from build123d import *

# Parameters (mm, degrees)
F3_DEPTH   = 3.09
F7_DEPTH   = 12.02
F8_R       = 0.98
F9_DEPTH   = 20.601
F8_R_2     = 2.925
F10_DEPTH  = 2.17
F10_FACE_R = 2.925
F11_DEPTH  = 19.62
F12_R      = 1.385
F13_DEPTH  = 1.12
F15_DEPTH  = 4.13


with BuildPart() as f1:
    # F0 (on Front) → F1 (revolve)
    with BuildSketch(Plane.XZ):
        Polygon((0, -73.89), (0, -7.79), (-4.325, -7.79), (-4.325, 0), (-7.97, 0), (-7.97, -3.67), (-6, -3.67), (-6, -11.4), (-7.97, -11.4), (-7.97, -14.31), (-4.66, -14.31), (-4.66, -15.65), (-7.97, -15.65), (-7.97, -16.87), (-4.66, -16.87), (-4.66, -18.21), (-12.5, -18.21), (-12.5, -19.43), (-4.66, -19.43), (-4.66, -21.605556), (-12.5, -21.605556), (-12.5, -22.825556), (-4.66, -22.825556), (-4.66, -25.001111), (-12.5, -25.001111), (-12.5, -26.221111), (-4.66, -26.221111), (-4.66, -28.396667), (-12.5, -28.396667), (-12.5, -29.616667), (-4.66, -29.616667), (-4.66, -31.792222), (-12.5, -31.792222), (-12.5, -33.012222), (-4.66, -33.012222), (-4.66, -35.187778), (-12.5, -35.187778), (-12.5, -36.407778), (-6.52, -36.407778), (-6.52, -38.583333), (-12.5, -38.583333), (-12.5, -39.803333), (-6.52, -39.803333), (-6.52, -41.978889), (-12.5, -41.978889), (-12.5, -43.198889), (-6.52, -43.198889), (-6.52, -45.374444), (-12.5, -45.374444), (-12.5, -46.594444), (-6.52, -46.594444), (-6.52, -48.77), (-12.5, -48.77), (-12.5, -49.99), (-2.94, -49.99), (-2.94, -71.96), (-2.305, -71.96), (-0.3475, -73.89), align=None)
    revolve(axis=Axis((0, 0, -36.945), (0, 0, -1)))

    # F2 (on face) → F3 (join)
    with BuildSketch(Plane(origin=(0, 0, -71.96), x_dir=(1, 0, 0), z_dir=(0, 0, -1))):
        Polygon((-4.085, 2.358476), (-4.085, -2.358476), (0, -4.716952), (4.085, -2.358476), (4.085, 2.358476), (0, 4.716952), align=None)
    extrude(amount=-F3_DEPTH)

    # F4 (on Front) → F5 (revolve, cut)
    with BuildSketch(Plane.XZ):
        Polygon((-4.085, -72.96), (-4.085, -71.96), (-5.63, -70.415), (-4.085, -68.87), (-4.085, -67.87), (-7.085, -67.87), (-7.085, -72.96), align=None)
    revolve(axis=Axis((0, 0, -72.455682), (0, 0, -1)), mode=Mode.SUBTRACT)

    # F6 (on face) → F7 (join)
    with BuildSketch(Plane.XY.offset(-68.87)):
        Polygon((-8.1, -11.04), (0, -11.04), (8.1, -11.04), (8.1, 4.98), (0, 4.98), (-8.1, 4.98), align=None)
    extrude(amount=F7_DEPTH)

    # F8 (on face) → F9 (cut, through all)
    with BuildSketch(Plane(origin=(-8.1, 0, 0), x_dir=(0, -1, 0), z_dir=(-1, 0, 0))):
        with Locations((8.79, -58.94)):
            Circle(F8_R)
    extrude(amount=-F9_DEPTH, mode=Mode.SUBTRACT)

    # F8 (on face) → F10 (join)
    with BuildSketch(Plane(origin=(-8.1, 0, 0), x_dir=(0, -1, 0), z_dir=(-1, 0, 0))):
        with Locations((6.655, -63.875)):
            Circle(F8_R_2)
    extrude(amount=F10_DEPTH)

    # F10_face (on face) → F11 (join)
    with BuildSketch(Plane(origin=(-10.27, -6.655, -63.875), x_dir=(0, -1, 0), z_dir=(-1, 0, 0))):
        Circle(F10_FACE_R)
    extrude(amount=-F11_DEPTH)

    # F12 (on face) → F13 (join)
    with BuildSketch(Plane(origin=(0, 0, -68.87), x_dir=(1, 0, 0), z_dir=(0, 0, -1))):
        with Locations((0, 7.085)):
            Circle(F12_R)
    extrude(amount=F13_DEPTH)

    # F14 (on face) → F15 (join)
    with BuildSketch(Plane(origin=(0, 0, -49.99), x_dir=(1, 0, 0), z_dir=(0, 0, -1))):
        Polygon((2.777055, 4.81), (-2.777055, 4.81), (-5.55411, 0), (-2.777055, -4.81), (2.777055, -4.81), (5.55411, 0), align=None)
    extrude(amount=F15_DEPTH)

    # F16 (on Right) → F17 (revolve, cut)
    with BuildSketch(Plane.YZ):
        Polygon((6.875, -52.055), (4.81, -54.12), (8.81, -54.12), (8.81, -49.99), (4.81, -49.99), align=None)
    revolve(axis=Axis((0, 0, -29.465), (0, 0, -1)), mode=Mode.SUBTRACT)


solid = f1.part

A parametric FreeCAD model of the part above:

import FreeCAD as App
import Part
import Sketcher
Q = App.Units.Quantity

doc = App.newDocument("Part")
body = doc.addObject("PartDesign::Body", "Body")

sketch1 = body.newObject("Sketcher::SketchObject", "Sketch")
sketch1.AttachmentSupport = (doc.getObject("XZ_Plane"), [""])
sketch1.MapMode = "FlatFace"
sketch1.addGeometry(Part.LineSegment(App.Vector(0, -73.89, 0), App.Vector(0, -7.79, 0)), False)
sketch1.addGeometry(Part.LineSegment(App.Vector(0, -7.79, 0), App.Vector(-4.33, -7.79, 0)), False)
sketch1.addGeometry(Part.LineSegment(App.Vector(-4.33, -7.79, 0), App.Vector(-4.33, 0, 0)), False)
sketch1.addGeometry(Part.LineSegment(App.Vector(-4.33, 0, 0), App.Vector(-7.97, 0, 0)), False)
sketch1.addGeometry(Part.LineSegment(App.Vector(-7.97, 0, 0), App.Vector(-7.97, -3.67, 0)), False)
sketch1.addGeometry(Part.LineSegment(App.Vector(-7.97, -3.67, 0), App.Vector(-6, -3.67, 0)), False)
sketch1.addGeometry(Part.LineSegment(App.Vector(-6, -3.67, 0), App.Vector(-6, -11.4, 0)), False)
sketch1.addGeometry(Part.LineSegment(App.Vector(-6, -11.4, 0), App.Vector(-7.97, -11.4, 0)), False)
sketch1.addGeometry(Part.LineSegment(App.Vector(-7.97, -11.4, 0), App.Vector(-7.97, -14.31, 0)), False)
sketch1.addGeometry(Part.LineSegment(App.Vector(-7.97, -14.31, 0), App.Vector(-4.66, -14.31, 0)), False)
sketch1.addGeometry(Part.LineSegment(App.Vector(-4.66, -14.31, 0), App.Vector(-4.66, -15.65, 0)), False)
sketch1.addGeometry(Part.LineSegment(App.Vector(-4.66, -15.65, 0), App.Vector(-7.97, -15.65, 0)), False)
sketch1.addGeometry(Part.LineSegment(App.Vector(-7.97, -15.65, 0), App.Vector(-7.97, -16.87, 0)), False)
sketch1.addGeometry(Part.LineSegment(App.Vector(-7.97, -16.87, 0), App.Vector(-4.66, -16.87, 0)), False)
sketch1.addGeometry(Part.LineSegment(App.Vector(-4.66, -16.87, 0), App.Vector(-4.66, -18.21, 0)), False)
sketch1.addGeometry(Part.LineSegment(App.Vector(-4.66, -18.21, 0), App.Vector(-12.5, -18.21, 0)), False)
sketch1.addGeometry(Part.LineSegment(App.Vector(-12.5, -18.21, 0), App.Vector(-12.5, -19.43, 0)), False)
sketch1.addGeometry(Part.LineSegment(App.Vector(-12.5, -19.43, 0), App.Vector(-4.66, -19.43, 0)), False)
sketch1.addGeometry(Part.LineSegment(App.Vector(-4.66, -19.43, 0), App.Vector(-4.66, -21.61, 0)), False)
sketch1.addGeometry(Part.LineSegment(App.Vector(-4.66, -21.61, 0), App.Vector(-12.5, -21.61, 0)), False)
sketch1.addGeometry(Part.LineSegment(App.Vector(-12.5, -21.61, 0), App.Vector(-12.5, -22.83, 0)), False)
sketch1.addGeometry(Part.LineSegment(App.Vector(-12.5, -22.83, 0), App.Vector(-4.66, -22.83, 0)), False)
sketch1.addGeometry(Part.LineSegment(App.Vector(-4.66, -22.83, 0), App.Vector(-4.66, -25, 0)), False)
sketch1.addGeometry(Part.LineSegment(App.Vector(-4.66, -25, 0), App.Vector(-12.5, -25, 0)), False)
sketch1.addGeometry(Part.LineSegment(App.Vector(-12.5, -25, 0), App.Vector(-12.5, -26.22, 0)), False)
sketch1.addGeometry(Part.LineSegment(App.Vector(-12.5, -26.22, 0), App.Vector(-4.66, -26.22, 0)), False)
sketch1.addGeometry(Part.LineSegment(App.Vector(-4.66, -26.22, 0), App.Vector(-4.66, -28.4, 0)), False)
sketch1.addGeometry(Part.LineSegment(App.Vector(-4.66, -28.4, 0), App.Vector(-12.5, -28.4, 0)), False)
sketch1.addGeometry(Part.LineSegment(App.Vector(-12.5, -28.4, 0), App.Vector(-12.5, -29.62, 0)), False)
sketch1.addGeometry(Part.LineSegment(App.Vector(-12.5, -29.62, 0), App.Vector(-4.66, -29.62, 0)), False)
sketch1.addGeometry(Part.LineSegment(App.Vector(-4.66, -29.62, 0), App.Vector(-4.66, -31.79, 0)), False)
sketch1.addGeometry(Part.LineSegment(App.Vector(-4.66, -31.79, 0), App.Vector(-12.5, -31.79, 0)), False)
sketch1.addGeometry(Part.LineSegment(App.Vector(-12.5, -31.79, 0), App.Vector(-12.5, -33.01, 0)), False)
sketch1.addGeometry(Part.LineSegment(App.Vector(-12.5, -33.01, 0), App.Vector(-4.66, -33.01, 0)), False)
sketch1.addGeometry(Part.LineSegment(App.Vector(-4.66, -33.01, 0), App.Vector(-4.66, -35.19, 0)), False)
sketch1.addGeometry(Part.LineSegment(App.Vector(-4.66, -35.19, 0), App.Vector(-12.5, -35.19, 0)), False)
sketch1.addGeometry(Part.LineSegment(App.Vector(-12.5, -35.19, 0), App.Vector(-12.5, -36.41, 0)), False)
sketch1.addGeometry(Part.LineSegment(App.Vector(-12.5, -36.41, 0), App.Vector(-6.52, -36.41, 0)), False)
sketch1.addGeometry(Part.LineSegment(App.Vector(-6.52, -36.41, 0), App.Vector(-6.52, -38.58, 0)), False)
sketch1.addGeometry(Part.LineSegment(App.Vector(-6.52, -38.58, 0), App.Vector(-12.5, -38.58, 0)), False)
sketch1.addGeometry(Part.LineSegment(App.Vector(-12.5, -38.58, 0), App.Vector(-12.5, -39.8, 0)), False)
sketch1.addGeometry(Part.LineSegment(App.Vector(-12.5, -39.8, 0), App.Vector(-6.52, -39.8, 0)), False)
sketch1.addGeometry(Part.LineSegment(App.Vector(-6.52, -39.8, 0), App.Vector(-6.52, -41.98, 0)), False)
sketch1.addGeometry(Part.LineSegment(App.Vector(-6.52, -41.98, 0), App.Vector(-12.5, -41.98, 0)), False)
sketch1.addGeometry(Part.LineSegment(App.Vector(-12.5, -41.98, 0), App.Vector(-12.5, -43.2, 0)), False)
sketch1.addGeometry(Part.LineSegment(App.Vector(-12.5, -43.2, 0), App.Vector(-6.52, -43.2, 0)), False)
sketch1.addGeometry(Part.LineSegment(App.Vector(-6.52, -43.2, 0), App.Vector(-6.52, -45.37, 0)), False)
sketch1.addGeometry(Part.LineSegment(App.Vector(-6.52, -45.37, 0), App.Vector(-12.5, -45.37, 0)), False)
sketch1.addGeometry(Part.LineSegment(App.Vector(-12.5, -45.37, 0), App.Vector(-12.5, -46.59, 0)), False)
sketch1.addGeometry(Part.LineSegment(App.Vector(-12.5, -46.59, 0), App.Vector(-6.52, -46.59, 0)), False)
sketch1.addGeometry(Part.LineSegment(App.Vector(-6.52, -46.59, 0), App.Vector(-6.52, -48.77, 0)), False)
sketch1.addGeometry(Part.LineSegment(App.Vector(-6.52, -48.77, 0), App.Vector(-12.5, -48.77, 0)), False)
sketch1.addGeometry(Part.LineSegment(App.Vector(-12.5, -48.77, 0), App.Vector(-12.5, -49.99, 0)), False)
sketch1.addGeometry(Part.LineSegment(App.Vector(-12.5, -49.99, 0), App.Vector(-2.94, -49.99, 0)), False)
sketch1.addGeometry(Part.LineSegment(App.Vector(-2.94, -49.99, 0), App.Vector(-2.94, -71.96, 0)), False)
sketch1.addGeometry(Part.LineSegment(App.Vector(-2.94, -71.96, 0), App.Vector(-2.31, -71.96, 0)), False)
sketch1.addGeometry(Part.LineSegment(App.Vector(-2.31, -71.96, 0), App.Vector(-0.35, -73.89, 0)), False)
sketch1.addGeometry(Part.LineSegment(App.Vector(-0.35, -73.89, 0), App.Vector(0, -73.89, 0)), False)
sketch1.addConstraint(Sketcher.Constraint("Coincident", 0, 2, 1, 1))
sketch1.addConstraint(Sketcher.Constraint("Coincident", 1, 2, 2, 1))
sketch1.addConstraint(Sketcher.Constraint("Coincident", 2, 2, 3, 1))
sketch1.addConstraint(Sketcher.Constraint("Coincident", 3, 2, 4, 1))
sketch1.addConstraint(Sketcher.Constraint("Coincident", 4, 2, 5, 1))
sketch1.addConstraint(Sketcher.Constraint("Coincident", 5, 2, 6, 1))
sketch1.addConstraint(Sketcher.Constraint("Coincident", 6, 2, 7, 1))
sketch1.addConstraint(Sketcher.Constraint("Coincident", 7, 2, 8, 1))
sketch1.addConstraint(Sketcher.Constraint("Coincident", 8, 2, 9, 1))
sketch1.addConstraint(Sketcher.Constraint("Coincident", 9, 2, 10, 1))
sketch1.addConstraint(Sketcher.Constraint("Coincident", 10, 2, 11, 1))
sketch1.addConstraint(Sketcher.Constraint("Coincident", 11, 2, 12, 1))
sketch1.addConstraint(Sketcher.Constraint("Coincident", 12, 2, 13, 1))
sketch1.addConstraint(Sketcher.Constraint("Coincident", 13, 2, 14, 1))
sketch1.addConstraint(Sketcher.Constraint("Coincident", 14, 2, 15, 1))
sketch1.addConstraint(Sketcher.Constraint("Coincident", 15, 2, 16, 1))
sketch1.addConstraint(Sketcher.Constraint("Coincident", 16, 2, 17, 1))
sketch1.addConstraint(Sketcher.Constraint("Coincident", 17, 2, 18, 1))
sketch1.addConstraint(Sketcher.Constraint("Coincident", 18, 2, 19, 1))
sketch1.addConstraint(Sketcher.Constraint("Coincident", 19, 2, 20, 1))
sketch1.addConstraint(Sketcher.Constraint("Coincident", 20, 2, 21, 1))
sketch1.addConstraint(Sketcher.Constraint("Coincident", 21, 2, 22, 1))
sketch1.addConstraint(Sketcher.Constraint("Coincident", 22, 2, 23, 1))
sketch1.addConstraint(Sketcher.Constraint("Coincident", 23, 2, 24, 1))
sketch1.addConstraint(Sketcher.Constraint("Coincident", 24, 2, 25, 1))
sketch1.addConstraint(Sketcher.Constraint("Coincident", 25, 2, 26, 1))
sketch1.addConstraint(Sketcher.Constraint("Coincident", 26, 2, 27, 1))
sketch1.addConstraint(Sketcher.Constraint("Coincident", 27, 2, 28, 1))
sketch1.addConstraint(Sketcher.Constraint("Coincident", 28, 2, 29, 1))
sketch1.addConstraint(Sketcher.Constraint("Coincident", 29, 2, 30, 1))
sketch1.addConstraint(Sketcher.Constraint("Coincident", 30, 2, 31, 1))
sketch1.addConstraint(Sketcher.Constraint("Coincident", 31, 2, 32, 1))
sketch1.addConstraint(Sketcher.Constraint("Coincident", 32, 2, 33, 1))
sketch1.addConstraint(Sketcher.Constraint("Coincident", 33, 2, 34, 1))
sketch1.addConstraint(Sketcher.Constraint("Coincident", 34, 2, 35, 1))
sketch1.addConstraint(Sketcher.Constraint("Coincident", 35, 2, 36, 1))
sketch1.addConstraint(Sketcher.Constraint("Coincident", 36, 2, 37, 1))
sketch1.addConstraint(Sketcher.Constraint("Coincident", 37, 2, 38, 1))
sketch1.addConstraint(Sketcher.Constraint("Coincident", 38, 2, 39, 1))
sketch1.addConstraint(Sketcher.Constraint("Coincident", 39, 2, 40, 1))
sketch1.addConstraint(Sketcher.Constraint("Coincident", 40, 2, 41, 1))
sketch1.addConstraint(Sketcher.Constraint("Coincident", 41, 2, 42, 1))
sketch1.addConstraint(Sketcher.Constraint("Coincident", 42, 2, 43, 1))
sketch1.addConstraint(Sketcher.Constraint("Coincident", 43, 2, 44, 1))
sketch1.addConstraint(Sketcher.Constraint("Coincident", 44, 2, 45, 1))
sketch1.addConstraint(Sketcher.Constraint("Coincident", 45, 2, 46, 1))
sketch1.addConstraint(Sketcher.Constraint("Coincident", 46, 2, 47, 1))
sketch1.addConstraint(Sketcher.Constraint("Coincident", 47, 2, 48, 1))
sketch1.addConstraint(Sketcher.Constraint("Coincident", 48, 2, 49, 1))
sketch1.addConstraint(Sketcher.Constraint("Coincident", 49, 2, 50, 1))
sketch1.addConstraint(Sketcher.Constraint("Coincident", 50, 2, 51, 1))
sketch1.addConstraint(Sketcher.Constraint("Coincident", 51, 2, 52, 1))
sketch1.addConstraint(Sketcher.Constraint("Coincident", 52, 2, 53, 1))
sketch1.addConstraint(Sketcher.Constraint("Coincident", 53, 2, 54, 1))
sketch1.addConstraint(Sketcher.Constraint("Coincident", 54, 2, 55, 1))
sketch1.addConstraint(Sketcher.Constraint("Coincident", 55, 2, 56, 1))
sketch1.addConstraint(Sketcher.Constraint("Coincident", 56, 2, 57, 1))
sketch1.addConstraint(Sketcher.Constraint("Coincident", 57, 2, 0, 1))
sketch1.addConstraint(Sketcher.Constraint("Vertical", 0))
sketch1.addConstraint(Sketcher.Constraint("Horizontal", 1))
sketch1.addConstraint(Sketcher.Constraint("Vertical", 2))
sketch1.addConstraint(Sketcher.Constraint("Horizontal", 3))
sketch1.addConstraint(Sketcher.Constraint("Vertical", 4))
sketch1.addConstraint(Sketcher.Constraint("Horizontal", 5))
sketch1.addConstraint(Sketcher.Constraint("Vertical", 6))
sketch1.addConstraint(Sketcher.Constraint("Horizontal", 7))
sketch1.addConstraint(Sketcher.Constraint("Vertical", 8))
sketch1.addConstraint(Sketcher.Constraint("Horizontal", 9))
sketch1.addConstraint(Sketcher.Constraint("Vertical", 10))
sketch1.addConstraint(Sketcher.Constraint("Horizontal", 11))
sketch1.addConstraint(Sketcher.Constraint("Vertical", 12))
sketch1.addConstraint(Sketcher.Constraint("Horizontal", 13))
sketch1.addConstraint(Sketcher.Constraint("Vertical", 14))
sketch1.addConstraint(Sketcher.Constraint("Horizontal", 15))
sketch1.addConstraint(Sketcher.Constraint("Vertical", 16))
sketch1.addConstraint(Sketcher.Constraint("Horizontal", 17))
sketch1.addConstraint(Sketcher.Constraint("Vertical", 18))
sketch1.addConstraint(Sketcher.Constraint("Horizontal", 19))
sketch1.addConstraint(Sketcher.Constraint("Vertical", 20))
sketch1.addConstraint(Sketcher.Constraint("Horizontal", 21))
sketch1.addConstraint(Sketcher.Constraint("Vertical", 22))
sketch1.addConstraint(Sketcher.Constraint("Horizontal", 23))
sketch1.addConstraint(Sketcher.Constraint("Vertical", 24))
sketch1.addConstraint(Sketcher.Constraint("Horizontal", 25))
sketch1.addConstraint(Sketcher.Constraint("Vertical", 26))
sketch1.addConstraint(Sketcher.Constraint("Horizontal", 27))
sketch1.addConstraint(Sketcher.Constraint("Vertical", 28))
sketch1.addConstraint(Sketcher.Constraint("Horizontal", 29))
sketch1.addConstraint(Sketcher.Constraint("Vertical", 30))
sketch1.addConstraint(Sketcher.Constraint("Horizontal", 31))
sketch1.addConstraint(Sketcher.Constraint("Vertical", 32))
sketch1.addConstraint(Sketcher.Constraint("Horizontal", 33))
sketch1.addConstraint(Sketcher.Constraint("Vertical", 34))
sketch1.addConstraint(Sketcher.Constraint("Horizontal", 35))
sketch1.addConstraint(Sketcher.Constraint("Vertical", 36))
sketch1.addConstraint(Sketcher.Constraint("Horizontal", 37))
sketch1.addConstraint(Sketcher.Constraint("Vertical", 38))
sketch1.addConstraint(Sketcher.Constraint("Horizontal", 39))
sketch1.addConstraint(Sketcher.Constraint("Vertical", 40))
sketch1.addConstraint(Sketcher.Constraint("Horizontal", 41))
sketch1.addConstraint(Sketcher.Constraint("Vertical", 42))
sketch1.addConstraint(Sketcher.Constraint("Horizontal", 43))
sketch1.addConstraint(Sketcher.Constraint("Vertical", 44))
sketch1.addConstraint(Sketcher.Constraint("Horizontal", 45))
sketch1.addConstraint(Sketcher.Constraint("Vertical", 46))
sketch1.addConstraint(Sketcher.Constraint("Horizontal", 47))
sketch1.addConstraint(Sketcher.Constraint("Vertical", 48))
sketch1.addConstraint(Sketcher.Constraint("Horizontal", 49))
sketch1.addConstraint(Sketcher.Constraint("Vertical", 50))
sketch1.addConstraint(Sketcher.Constraint("Horizontal", 51))
sketch1.addConstraint(Sketcher.Constraint("Vertical", 52))
sketch1.addConstraint(Sketcher.Constraint("Horizontal", 53))
sketch1.addConstraint(Sketcher.Constraint("Vertical", 54))
sketch1.addConstraint(Sketcher.Constraint("Horizontal", 55))
sketch1.addConstraint(Sketcher.Constraint("Horizontal", 57))
sketch1.addConstraint(Sketcher.Constraint("PointOnObject", 0, 2, -2))
sketch1.addConstraint(Sketcher.Constraint("PointOnObject", 2, 2, -1))
sketch1.addConstraint(Sketcher.Constraint("Vertical", 4, 2, 7, 2))
sketch1.addConstraint(Sketcher.Constraint("Vertical", 8, 2, 11, 2))
sketch1.addConstraint(Sketcher.Constraint("Vertical", 10, 2, 13, 2))
sketch1.addConstraint(Sketcher.Constraint("Vertical", 14, 2, 17, 2))
sketch1.addConstraint(Sketcher.Constraint("Vertical", 16, 2, 19, 2))
sketch1.addConstraint(Sketcher.Constraint("Vertical", 18, 2, 21, 2))
sketch1.addConstraint(Sketcher.Constraint("Vertical", 20, 2, 23, 2))
sketch1.addConstraint(Sketcher.Constraint("Vertical", 22, 2, 25, 2))
sketch1.addConstraint(Sketcher.Constraint("Vertical", 24, 2, 27, 2))
sketch1.addConstraint(Sketcher.Constraint("Vertical", 26, 2, 29, 2))
sketch1.addConstraint(Sketcher.Constraint("Vertical", 28, 2, 31, 2))
sketch1.addConstraint(Sketcher.Constraint("Vertical", 30, 2, 33, 2))
sketch1.addConstraint(Sketcher.Constraint("Vertical", 32, 2, 35, 2))
sketch1.addConstraint(Sketcher.Constraint("Vertical", 36, 2, 39, 2))
sketch1.addConstraint(Sketcher.Constraint("Vertical", 38, 2, 41, 2))
sketch1.addConstraint(Sketcher.Constraint("Vertical", 40, 2, 43, 2))
sketch1.addConstraint(Sketcher.Constraint("Vertical", 42, 2, 45, 2))
sketch1.addConstraint(Sketcher.Constraint("Vertical", 44, 2, 47, 2))
sketch1.addConstraint(Sketcher.Constraint("Vertical", 46, 2, 49, 2))
sketch1.addConstraint(Sketcher.Constraint("Vertical", 48, 2, 51, 2))
sketch1.addConstraint(Sketcher.Constraint("Equal", 10, 14))
sketch1.addConstraint(Sketcher.Constraint("Equal", 12, 16))
sketch1.addConstraint(Sketcher.Constraint("Equal", 16, 20))
sketch1.addConstraint(Sketcher.Constraint("Equal", 18, 22))
sketch1.addConstraint(Sketcher.Constraint("Equal", 20, 24))
sketch1.addConstraint(Sketcher.Constraint("Equal", 22, 26))
sketch1.addConstraint(Sketcher.Constraint("Equal", 24, 28))
sketch1.addConstraint(Sketcher.Constraint("Equal", 26, 30))
sketch1.addConstraint(Sketcher.Constraint("Equal", 28, 32))
sketch1.addConstraint(Sketcher.Constraint("Equal", 30, 34))
sketch1.addConstraint(Sketcher.Constraint("Equal", 32, 36))
sketch1.addConstraint(Sketcher.Constraint("Equal", 34, 38))
sketch1.addConstraint(Sketcher.Constraint("Equal", 36, 40))
sketch1.addConstraint(Sketcher.Constraint("Equal", 38, 42))
sketch1.addConstraint(Sketcher.Constraint("Equal", 40, 44))
sketch1.addConstraint(Sketcher.Constraint("Equal", 42, 46))
sketch1.addConstraint(Sketcher.Constraint("Equal", 44, 48))
sketch1.addConstraint(Sketcher.Constraint("Equal", 46, 50))
sketch1.addConstraint(Sketcher.Constraint("Equal", 48, 52))
sketch1.addConstraint(Sketcher.Constraint("DistanceY", 0, 1, 0, 2, Q("66.1 mm")))
sketch1.addConstraint(Sketcher.Constraint("DistanceX", 5, 2, -1, 1, Q("6 mm")))
sketch1.addConstraint(Sketcher.Constraint("DistanceX", 5, 1, 5, 2, Q("1.97 mm")))
sketch1.addConstraint(Sketcher.Constraint("DistanceX", 9, 1, 9, 2, Q("3.31 mm")))
sketch1.addConstraint(Sketcher.Constraint("DistanceX", 15, 2, 15, 1, Q("7.84 mm")))
sketch1.addConstraint(Sketcher.Constraint("DistanceX", 37, 1, 37, 2, Q("5.98 mm")))
sketch1.addConstraint(Sketcher.Constraint("DistanceX", 53, 1, 53, 2, Q("9.56 mm")))
sketch1.addConstraint(Sketcher.Constraint("DistanceY", 2, 1, 2, 2, Q("7.79 mm")))
sketch1.addConstraint(Sketcher.Constraint("DistanceY", 4, 2, 4, 1, Q("3.67 mm")))
sketch1.addConstraint(Sketcher.Constraint("DistanceY", 6, 2, 6, 1, Q("7.73 mm")))
sketch1.addConstraint(Sketcher.Constraint("DistanceY", 8, 2, 8, 1, Q("2.91 mm")))
sketch1.addConstraint(Sketcher.Constraint("DistanceY", 10, 2, 10, 1, Q("1.34 mm")))
sketch1.addConstraint(Sketcher.Constraint("DistanceY", 12, 2, 12, 1, Q("1.22 mm")))
sketch1.addConstraint(Sketcher.Constraint("DistanceY", 54, 2, 54, 1, Q("21.97 mm")))
sketch1.addConstraint(Sketcher.Constraint("DistanceY", 56, 2, 53, 2, Q("23.9 mm")))
sketch1.addConstraint(Sketcher.Constraint("DistanceX", 1, 2, 1, 1, Q("4.325 mm")))
sketch1.addConstraint(Sketcher.Constraint("DistanceX", 55, 1, 55, 2, Q("0.635 mm")))
sketch1.addConstraint(Sketcher.Constraint("DistanceX", 57, 1, 57, 2, Q("0.3475 mm")))
revolution = body.newObject("PartDesign::Revolution", "Revolution")
revolution.Profile = sketch1
revolution.ReferenceAxis = (sketch1, ["V_Axis"])
revolution.Angle = 360

sketch2 = body.newObject("Sketcher::SketchObject", "Sketch001")
sketch2.AttachmentSupport = (doc.getObject("XY_Plane"), [""])
sketch2.MapMode = "FlatFace"
sketch2.AttachmentOffset = App.Placement(App.Vector(0, 0, -71.96), App.Rotation())
sketch2.addGeometry(Part.LineSegment(App.Vector(-4.1, -2.4, 0), App.Vector(-4.1, 2.4, 0)), False)
sketch2.addGeometry(Part.LineSegment(App.Vector(-4.1, 2.4, 0), App.Vector(0, 4.7, 0)), False)
sketch2.addGeometry(Part.LineSegment(App.Vector(0, 4.7, 0), App.Vector(4.1, 2.4, 0)), False)
sketch2.addGeometry(Part.LineSegment(App.Vector(4.1, 2.4, 0), App.Vector(4.1, -2.4, 0)), False)
sketch2.addGeometry(Part.LineSegment(App.Vector(4.1, -2.4, 0), App.Vector(0, -4.7, 0)), False)
sketch2.addGeometry(Part.LineSegment(App.Vector(0, -4.7, 0), App.Vector(-4.1, -2.4, 0)), False)
sketch2.addConstraint(Sketcher.Constraint("Coincident", 0, 2, 1, 1))
sketch2.addConstraint(Sketcher.Constraint("Coincident", 1, 2, 2, 1))
sketch2.addConstraint(Sketcher.Constraint("Coincident", 2, 2, 3, 1))
sketch2.addConstraint(Sketcher.Constraint("Coincident", 3, 2, 4, 1))
sketch2.addConstraint(Sketcher.Constraint("Coincident", 4, 2, 5, 1))
sketch2.addConstraint(Sketcher.Constraint("Coincident", 5, 2, 0, 1))
sketch2.addConstraint(Sketcher.Constraint("Vertical", 0))
sketch2.addConstraint(Sketcher.Constraint("Vertical", 3))
sketch2.addConstraint(Sketcher.Constraint("Symmetric", 0, 2, 3, 2, -1, 1))
sketch2.addConstraint(Sketcher.Constraint("Symmetric", 1, 2, 4, 2, -1, 1))
sketch2.addConstraint(Sketcher.Constraint("PointOnObject", 1, 2, -2))
sketch2.addConstraint(Sketcher.Constraint("Parallel", 2, 5))
sketch2.addConstraint(Sketcher.Constraint("Horizontal", 0, 2, 2, 2))
sketch2.addConstraint(Sketcher.Constraint("Angle", 1, Q("30.000002 deg")))
sketch2.addConstraint(Sketcher.Constraint("DistanceX", 0, 2, 2, 2, Q("8.17 mm")))
sketch2.addConstraint(Sketcher.Constraint("DistanceY", 0, 1, 0, 2, Q("4.716952 mm")))
pad1 = body.newObject("PartDesign::Pad", "Pad")
pad1.Profile = sketch2
pad1.Length = 3.09

sketch3 = body.newObject("Sketcher::SketchObject", "Sketch002")
sketch3.AttachmentSupport = (doc.getObject("XZ_Plane"), [""])
sketch3.MapMode = "FlatFace"
sketch3.addGeometry(Part.LineSegment(App.Vector(-4.1, -73, 0), App.Vector(-4.1, -72, 0)), False)
sketch3.addGeometry(Part.LineSegment(App.Vector(-4.1, -72, 0), App.Vector(-5.6, -70.4, 0)), False)
sketch3.addGeometry(Part.LineSegment(App.Vector(-5.6, -70.4, 0), App.Vector(-4.1, -68.9, 0)), False)
sketch3.addGeometry(Part.LineSegment(App.Vector(-4.1, -68.9, 0), App.Vector(-4.1, -67.9, 0)), False)
sketch3.addGeometry(Part.LineSegment(App.Vector(-4.1, -67.9, 0), App.Vector(-7.1, -67.9, 0)), False)
sketch3.addGeometry(Part.LineSegment(App.Vector(-7.1, -67.9, 0), App.Vector(-7.1, -73, 0)), False)
sketch3.addGeometry(Part.LineSegment(App.Vector(-7.1, -73, 0), App.Vector(-4.1, -73, 0)), False)
sketch3.addConstraint(Sketcher.Constraint("Coincident", 0, 2, 1, 1))
sketch3.addConstraint(Sketcher.Constraint("Coincident", 1, 2, 2, 1))
sketch3.addConstraint(Sketcher.Constraint("Coincident", 2, 2, 3, 1))
sketch3.addConstraint(Sketcher.Constraint("Coincident", 3, 2, 4, 1))
sketch3.addConstraint(Sketcher.Constraint("Coincident", 4, 2, 5, 1))
sketch3.addConstraint(Sketcher.Constraint("Coincident", 5, 2, 6, 1))
sketch3.addConstraint(Sketcher.Constraint("Coincident", 6, 2, 0, 1))
sketch3.addConstraint(Sketcher.Constraint("Vertical", 0))
sketch3.addConstraint(Sketcher.Constraint("Vertical", 3))
sketch3.addConstraint(Sketcher.Constraint("Horizontal", 4))
sketch3.addConstraint(Sketcher.Constraint("Vertical", 5))
sketch3.addConstraint(Sketcher.Constraint("Horizontal", 6))
sketch3.addConstraint(Sketcher.Constraint("Perpendicular", 1, 2))
sketch3.addConstraint(Sketcher.Constraint("Vertical", 0, 2, 2, 2))
sketch3.addConstraint(Sketcher.Constraint("Equal", 0, 3))
sketch3.addConstraint(Sketcher.Constraint("Equal", 1, 2))
sketch3.addConstraint(Sketcher.Constraint("DistanceX", 4, 2, 4, 1, Q("3 mm")))
sketch3.addConstraint(Sketcher.Constraint("DistanceY", 0, 1, 0, 2, Q("1 mm")))
sketch3.addConstraint(Sketcher.Constraint("DistanceY", 5, 2, 5, 1, Q("5.09 mm")))
sketch3.addConstraint(Sketcher.Constraint("DistanceY", 0, 2, -1, 1, Q("71.96 mm")))
sketch3.addConstraint(Sketcher.Constraint("DistanceX", 1, 2, -1, 1, Q("5.63 mm")))
groove = body.newObject("PartDesign::Groove", "Groove")
groove.Profile = sketch3
groove.ReferenceAxis = (sketch3, ["V_Axis"])
groove.Angle = 360

sketch4 = body.newObject("Sketcher::SketchObject", "Sketch003")
sketch4.AttachmentSupport = (doc.getObject("XY_Plane"), [""])
sketch4.MapMode = "FlatFace"
sketch4.AttachmentOffset = App.Placement(App.Vector(0, 0, -68.87), App.Rotation())
sketch4.addGeometry(Part.LineSegment(App.Vector(-8, -11, 0), App.Vector(8, -11, 0)), False)
sketch4.addGeometry(Part.LineSegment(App.Vector(8, -11, 0), App.Vector(8, 5, 0)), False)
sketch4.addGeometry(Part.LineSegment(App.Vector(8, 5, 0), App.Vector(-8, 5, 0)), False)
sketch4.addGeometry(Part.LineSegment(App.Vector(-8, 5, 0), App.Vector(-8, -11, 0)), False)
sketch4.addConstraint(Sketcher.Constraint("Coincident", 0, 2, 1, 1))
sketch4.addConstraint(Sketcher.Constraint("Coincident", 1, 2, 2, 1))
sketch4.addConstraint(Sketcher.Constraint("Coincident", 2, 2, 3, 1))
sketch4.addConstraint(Sketcher.Constraint("Coincident", 3, 2, 0, 1))
sketch4.addConstraint(Sketcher.Constraint("Horizontal", 0))
sketch4.addConstraint(Sketcher.Constraint("Vertical", 1))
sketch4.addConstraint(Sketcher.Constraint("Horizontal", 2))
sketch4.addConstraint(Sketcher.Constraint("Vertical", 3))
sketch4.addConstraint(Sketcher.Constraint("DistanceX", 0, 1, 0, 2, Q("16.2 mm")))
sketch4.addConstraint(Sketcher.Constraint("DistanceY", 1, 1, 1, 2, Q("16.02 mm")))
sketch4.addConstraint(Sketcher.Constraint("DistanceX", -1, 1, 0, 2, Q("8.1 mm")))
sketch4.addConstraint(Sketcher.Constraint("DistanceY", 0, 2, -1, 1, Q("11.04 mm")))
pad2 = body.newObject("PartDesign::Pad", "Pad001")
pad2.Profile = sketch4
pad2.Length = 12.02

sketch5 = body.newObject("Sketcher::SketchObject", "Sketch004")
sketch5.AttachmentSupport = (doc.getObject("YZ_Plane"), [""])
sketch5.MapMode = "FlatFace"
sketch5.AttachmentOffset = App.Placement(App.Vector(0, 0, -8.1), App.Rotation())
sketch5.addGeometry(Part.Circle(App.Vector(-8.8, -58.9, 0), App.Vector(0, 0, 1), 1), False)
sketch5.addConstraint(Sketcher.Constraint("Diameter", 0, Q("1.96 mm")))
sketch5.addConstraint(Sketcher.Constraint("DistanceX", 0, 3, -1, 1, Q("8.79 mm")))
sketch5.addConstraint(Sketcher.Constraint("DistanceY", 0, 3, -1, 1, Q("58.94 mm")))
pocket1 = body.newObject("PartDesign::Pocket", "Pocket")
pocket1.Profile = sketch5
pocket1.Type = "ThroughAll"
pocket1.Reversed = True

sketch6 = body.newObject("Sketcher::SketchObject", "Sketch005")
sketch6.AttachmentSupport = (doc.getObject("YZ_Plane"), [""])
sketch6.MapMode = "FlatFace"
sketch6.AttachmentOffset = App.Placement(App.Vector(0, 0, -8.1), App.Rotation())
sketch6.addGeometry(Part.Circle(App.Vector(-6.7, -63.9, 0), App.Vector(0, 0, 1), 2.9), False)
sketch6.addConstraint(Sketcher.Constraint("Diameter", 0, Q("5.85 mm")))
sketch6.addConstraint(Sketcher.Constraint("DistanceX", 0, 3, -1, 1, Q("6.655 mm")))
sketch6.addConstraint(Sketcher.Constraint("DistanceY", 0, 3, -1, 1, Q("63.875 mm")))
pad3 = body.newObject("PartDesign::Pad", "Pad002")
pad3.Profile = sketch6
pad3.Length = 2.17
pad3.Reversed = True

sketch7 = body.newObject("Sketcher::SketchObject", "Sketch006")
sketch7.AttachmentSupport = (doc.getObject("YZ_Plane"), [""])
sketch7.MapMode = "FlatFace"
sketch7.AttachmentOffset = App.Placement(App.Vector(0, 0, -10.27), App.Rotation())
sketch7.addGeometry(Part.Circle(App.Vector(-6.7, -63.9, 0), App.Vector(0, 0, 1), 2.9), False)
sketch7.addConstraint(Sketcher.Constraint("Diameter", 0, Q("5.85 mm")))
sketch7.addConstraint(Sketcher.Constraint("DistanceX", 0, 3, -1, 1, Q("6.655 mm")))
sketch7.addConstraint(Sketcher.Constraint("DistanceY", 0, 3, -1, 1, Q("63.875 mm")))
pad4 = body.newObject("PartDesign::Pad", "Pad003")
pad4.Profile = sketch7
pad4.Length = 19.62

sketch8 = body.newObject("Sketcher::SketchObject", "Sketch007")
sketch8.AttachmentSupport = (doc.getObject("XY_Plane"), [""])
sketch8.MapMode = "FlatFace"
sketch8.AttachmentOffset = App.Placement(App.Vector(0, 0, -68.87), App.Rotation())
sketch8.addGeometry(Part.Circle(App.Vector(0, -7.1, 0), App.Vector(0, 0, 1), 1.4), False)
sketch8.addConstraint(Sketcher.Constraint("PointOnObject", 0, 3, -2))
sketch8.addConstraint(Sketcher.Constraint("Diameter", 0, Q("2.77 mm")))
sketch8.addConstraint(Sketcher.Constraint("DistanceY", 0, 3, -1, 1, Q("7.085 mm")))
pad5 = body.newObject("PartDesign::Pad", "Pad004")
pad5.Profile = sketch8
pad5.Length = 1.12
pad5.Reversed = True

sketch9 = body.newObject("Sketcher::SketchObject", "Sketch008")
sketch9.AttachmentSupport = (doc.getObject("XY_Plane"), [""])
sketch9.MapMode = "FlatFace"
sketch9.AttachmentOffset = App.Placement(App.Vector(0, 0, -49.99), App.Rotation())
sketch9.addGeometry(Part.LineSegment(App.Vector(3, -5, 0), App.Vector(-3, -5, 0)), False)
sketch9.addGeometry(Part.LineSegment(App.Vector(-3, -5, 0), App.Vector(-6, 0, 0)), False)
sketch9.addGeometry(Part.LineSegment(App.Vector(-6, 0, 0), App.Vector(-3, 5, 0)), False)
sketch9.addGeometry(Part.LineSegment(App.Vector(-3, 5, 0), App.Vector(3, 5, 0)), False)
sketch9.addGeometry(Part.LineSegment(App.Vector(3, 5, 0), App.Vector(6, 0, 0)), False)
sketch9.addGeometry(Part.LineSegment(App.Vector(6, 0, 0), App.Vector(3, -5, 0)), False)
sketch9.addConstraint(Sketcher.Constraint("Coincident", 0, 2, 1, 1))
sketch9.addConstraint(Sketcher.Constraint("Coincident", 1, 2, 2, 1))
sketch9.addConstraint(Sketcher.Constraint("Coincident", 2, 2, 3, 1))
sketch9.addConstraint(Sketcher.Constraint("Coincident", 3, 2, 4, 1))
sketch9.addConstraint(Sketcher.Constraint("Coincident", 4, 2, 5, 1))
sketch9.addConstraint(Sketcher.Constraint("Coincident", 5, 2, 0, 1))
sketch9.addConstraint(Sketcher.Constraint("Horizontal", 0))
sketch9.addConstraint(Sketcher.Constraint("Horizontal", 3))
sketch9.addConstraint(Sketcher.Constraint("Symmetric", 0, 2, 3, 2, -1, 1))
sketch9.addConstraint(Sketcher.Constraint("Symmetric", 1, 2, 4, 2, -1, 1))
sketch9.addConstraint(Sketcher.Constraint("PointOnObject", 1, 2, -1))
sketch9.addConstraint(Sketcher.Constraint("Parallel", 2, 5))
sketch9.addConstraint(Sketcher.Constraint("Vertical", 0, 2, 2, 2))
sketch9.addConstraint(Sketcher.Constraint("Angle", 1, Q("120.000002 deg")))
sketch9.addConstraint(Sketcher.Constraint("DistanceY", 0, 2, -1, 1, Q("4.81 mm")))
sketch9.addConstraint(Sketcher.Constraint("DistanceX", 0, 2, 0, 1, Q("5.55411 mm")))
pad6 = body.newObject("PartDesign::Pad", "Pad005")
pad6.Profile = sketch9
pad6.Length = 4.13
pad6.Reversed = True

sketch10 = body.newObject("Sketcher::SketchObject", "Sketch009")
sketch10.AttachmentSupport = (doc.getObject("YZ_Plane"), [""])
sketch10.MapMode = "FlatFace"
sketch10.addGeometry(Part.LineSegment(App.Vector(6.9, -52.1, 0), App.Vector(4.8, -54.1, 0)), False)
sketch10.addGeometry(Part.LineSegment(App.Vector(4.8, -54.1, 0), App.Vector(8.8, -54.1, 0)), False)
sketch10.addGeometry(Part.LineSegment(App.Vector(8.8, -54.1, 0), App.Vector(8.8, -50, 0)), False)
sketch10.addGeometry(Part.LineSegment(App.Vector(8.8, -50, 0), App.Vector(4.8, -50, 0)), False)
sketch10.addGeometry(Part.LineSegment(App.Vector(4.8, -50, 0), App.Vector(6.9, -52.1, 0)), False)
sketch10.addConstraint(Sketcher.Constraint("Coincident", 0, 2, 1, 1))
sketch10.addConstraint(Sketcher.Constraint("Coincident", 1, 2, 2, 1))
sketch10.addConstraint(Sketcher.Constraint("Coincident", 2, 2, 3, 1))
sketch10.addConstraint(Sketcher.Constraint("Coincident", 3, 2, 4, 1))
sketch10.addConstraint(Sketcher.Constraint("Coincident", 4, 2, 0, 1))
sketch10.addConstraint(Sketcher.Constraint("Horizontal", 1))
sketch10.addConstraint(Sketcher.Constraint("Vertical", 2))
sketch10.addConstraint(Sketcher.Constraint("Horizontal", 3))
sketch10.addConstraint(Sketcher.Constraint("Perpendicular", 0, 4))
sketch10.addConstraint(Sketcher.Constraint("Vertical", 0, 2, 3, 2))
sketch10.addConstraint(Sketcher.Constraint("Equal", 0, 4))
sketch10.addConstraint(Sketcher.Constraint("DistanceX", 1, 1, 1, 2, Q("4 mm")))
sketch10.addConstraint(Sketcher.Constraint("DistanceY", 2, 1, 2, 2, Q("4.13 mm")))
sketch10.addConstraint(Sketcher.Constraint("DistanceX", -1, 1, 0, 2, Q("4.81 mm")))
sketch10.addConstraint(Sketcher.Constraint("DistanceY", 0, 2, -1, 1, Q("54.12 mm")))
groove2 = body.newObject("PartDesign::Groove", "Groove001")
groove2.Profile = sketch10
groove2.ReferenceAxis = (sketch10, ["V_Axis"])
groove2.Angle = 360

doc.recompute()
